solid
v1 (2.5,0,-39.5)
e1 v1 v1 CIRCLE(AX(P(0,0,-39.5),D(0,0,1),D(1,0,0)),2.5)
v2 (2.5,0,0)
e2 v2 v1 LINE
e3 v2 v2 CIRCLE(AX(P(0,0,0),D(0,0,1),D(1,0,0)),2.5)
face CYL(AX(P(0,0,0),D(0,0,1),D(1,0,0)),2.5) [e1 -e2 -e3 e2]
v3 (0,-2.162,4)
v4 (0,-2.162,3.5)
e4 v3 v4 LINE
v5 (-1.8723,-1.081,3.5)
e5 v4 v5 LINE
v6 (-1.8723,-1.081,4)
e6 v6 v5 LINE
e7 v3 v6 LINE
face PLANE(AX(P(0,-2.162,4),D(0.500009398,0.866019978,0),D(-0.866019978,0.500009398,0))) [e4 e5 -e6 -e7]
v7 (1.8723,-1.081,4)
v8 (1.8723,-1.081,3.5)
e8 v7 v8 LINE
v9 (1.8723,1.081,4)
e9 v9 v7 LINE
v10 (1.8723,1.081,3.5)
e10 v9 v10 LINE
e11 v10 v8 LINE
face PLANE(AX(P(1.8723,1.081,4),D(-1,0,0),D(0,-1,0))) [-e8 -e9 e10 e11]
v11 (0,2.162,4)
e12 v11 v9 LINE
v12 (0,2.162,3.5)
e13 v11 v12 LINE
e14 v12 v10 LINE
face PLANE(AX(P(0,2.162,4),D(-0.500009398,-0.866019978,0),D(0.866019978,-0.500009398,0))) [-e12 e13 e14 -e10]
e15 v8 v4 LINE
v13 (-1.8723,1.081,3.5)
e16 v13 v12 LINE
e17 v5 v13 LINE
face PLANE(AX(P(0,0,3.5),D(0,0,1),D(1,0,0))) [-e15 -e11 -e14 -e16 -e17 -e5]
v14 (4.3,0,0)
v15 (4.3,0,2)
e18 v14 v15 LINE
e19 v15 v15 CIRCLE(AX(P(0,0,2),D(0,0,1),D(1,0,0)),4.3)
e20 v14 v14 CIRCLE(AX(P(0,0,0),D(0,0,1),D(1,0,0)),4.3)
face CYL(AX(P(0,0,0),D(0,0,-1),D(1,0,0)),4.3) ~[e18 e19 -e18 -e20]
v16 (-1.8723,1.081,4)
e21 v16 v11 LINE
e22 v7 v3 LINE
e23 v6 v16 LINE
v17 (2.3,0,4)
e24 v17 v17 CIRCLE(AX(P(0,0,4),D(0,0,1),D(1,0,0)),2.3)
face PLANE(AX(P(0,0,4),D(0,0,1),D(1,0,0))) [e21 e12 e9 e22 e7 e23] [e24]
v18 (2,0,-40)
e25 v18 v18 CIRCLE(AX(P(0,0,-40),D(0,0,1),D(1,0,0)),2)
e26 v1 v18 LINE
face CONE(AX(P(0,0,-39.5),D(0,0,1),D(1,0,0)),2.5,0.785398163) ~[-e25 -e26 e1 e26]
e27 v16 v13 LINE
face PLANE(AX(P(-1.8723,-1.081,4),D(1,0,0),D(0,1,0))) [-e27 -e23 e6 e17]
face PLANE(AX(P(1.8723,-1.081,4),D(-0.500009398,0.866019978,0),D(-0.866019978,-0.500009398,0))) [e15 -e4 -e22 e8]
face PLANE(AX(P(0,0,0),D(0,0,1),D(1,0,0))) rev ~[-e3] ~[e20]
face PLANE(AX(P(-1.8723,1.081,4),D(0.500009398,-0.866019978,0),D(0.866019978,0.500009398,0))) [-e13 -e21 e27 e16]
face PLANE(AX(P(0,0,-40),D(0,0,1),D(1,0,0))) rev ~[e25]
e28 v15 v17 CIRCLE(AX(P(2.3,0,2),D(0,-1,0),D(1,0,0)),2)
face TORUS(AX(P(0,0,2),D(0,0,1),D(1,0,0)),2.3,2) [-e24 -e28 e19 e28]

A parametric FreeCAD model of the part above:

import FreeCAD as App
import Part
import Sketcher
from FreeCAD import Vector
Q = App.Units.Quantity


def edges_at(feature, points):
    """Names of the edges that pass closest to the given points."""
    edges = feature.Shape.Edges
    near = lambda p: min(range(len(edges)), key=lambda i: edges[i].distToShape(Part.Vertex(*p))[0])
    return sorted({f"Edge{near(p) + 1}" for p in points})

doc = App.newDocument("Part")
body = doc.addObject("PartDesign::Body", "Body")

sketch1 = body.newObject("Sketcher::SketchObject", "Sketch")
sketch1.AttachmentSupport = (doc.getObject("XY_Plane"), [""])
sketch1.MapMode = "FlatFace"
sketch1.addGeometry(Part.Circle(Vector(0, 0, 0), Vector(0, 0, 1), 2.5), False)
sketch1.addConstraint(Sketcher.Constraint("Coincident", 0, 3, -1, 1))
sketch1.addConstraint(Sketcher.Constraint("Diameter", 0, Q("5 mm")))
pad1 = body.newObject("PartDesign::Pad", "Pad")
pad1.Profile = sketch1
pad1.Length = 40
pad1.Reversed = True

sketch2 = body.newObject("Sketcher::SketchObject", "Sketch001")
sketch2.AttachmentSupport = (doc.getObject("XY_Plane"), [""])
sketch2.MapMode = "FlatFace"
sketch2.addGeometry(Part.Circle(Vector(0, 0, 0), Vector(0, 0, 1), 4.3), False)
sketch2.addConstraint(Sketcher.Constraint("Coincident", 0, 3, -1, 1))
sketch2.addConstraint(Sketcher.Constraint("Diameter", 0, Q("8.6 mm")))
pad2 = body.newObject("PartDesign::Pad", "Pad001")
pad2.Profile = sketch2
pad2.Length = 4
doc.recompute()

fillet = body.newObject("PartDesign::Fillet", "Fillet")
fillet.Base = (pad2, edges_at(pad2, [(-4.3, 0, 4)]))
fillet.Radius = 2

sketch3 = body.newObject("Sketcher::SketchObject", "Sketch002")
sketch3.AttachmentSupport = (doc.getObject("XY_Plane"), [""])
sketch3.MapMode = "FlatFace"
sketch3.AttachmentOffset = App.Placement(Vector(0, 0, 4), App.Rotation())
sketch3.addGeometry(Part.LineSegment(Vector(-1.8723, -1.081, 0), Vector(0, -2.162, 0)), False)
sketch3.addGeometry(Part.LineSegment(Vector(0, -2.162, 0), Vector(1.8723, -1.081, 0)), False)
sketch3.addGeometry(Part.LineSegment(Vector(1.8723, -1.081, 0), Vector(1.8723, 1.081, 0)), False)
sketch3.addGeometry(Part.LineSegment(Vector(1.8723, 1.081, 0), Vector(0, 2.162, 0)), False)
sketch3.addGeometry(Part.LineSegment(Vector(0, 2.162, 0), Vector(-1.8723, 1.081, 0)), False)
sketch3.addGeometry(Part.LineSegment(Vector(-1.8723, 1.081, 0), Vector(-1.8723, -1.081, 0)), False)
sketch3.addConstraint(Sketcher.Constraint("Coincident", 0, 2, 1, 1))
sketch3.addConstraint(Sketcher.Constraint("Coincident", 1, 2, 2, 1))
sketch3.addConstraint(Sketcher.Constraint("Coincident", 2, 2, 3, 1))
sketch3.addConstraint(Sketcher.Constraint("Coincident", 3, 2, 4, 1))
sketch3.addConstraint(Sketcher.Constraint("Coincident", 4, 2, 5, 1))
sketch3.addConstraint(Sketcher.Constraint("Coincident", 5, 2, 0, 1))
sketch3.addConstraint(Sketcher.Constraint("Vertical", 2))
sketch3.addConstraint(Sketcher.Constraint("Vertical", 5))
sketch3.addConstraint(Sketcher.Constraint("Symmetric", 0, 2, 3, 2, -1, 1))
sketch3.addConstraint(Sketcher.Constraint("Symmetric", 1, 2, 4, 2, -1, 1))
sketch3.addConstraint(Sketcher.Constraint("PointOnObject", 0, 2, -2))
sketch3.addConstraint(Sketcher.Constraint("Parallel", 0, 3))
sketch3.addConstraint(Sketcher.Constraint("Horizontal", 2, 2, 4, 2))
sketch3.addConstraint(Sketcher.Constraint("Angle", 0, Q("-30.0006 deg")))
sketch3.addConstraint(Sketcher.Constraint("DistanceY", 2, 1, 2, 2, Q("2.162 mm")))
sketch3.addConstraint(Sketcher.Constraint("Distance", 0, Q("2.162 mm")))
pocket1 = body.newObject("PartDesign::Pocket", "Pocket")
pocket1.Profile = sketch3
pocket1.Length = 0.5
doc.recompute()

chamfer = body.newObject("PartDesign::Chamfer", "Chamfer")
chamfer.Base = (pocket1, edges_at(pocket1, [(-2.5, 0, -40)]))
chamfer.Size = 0.5

doc.recompute()
